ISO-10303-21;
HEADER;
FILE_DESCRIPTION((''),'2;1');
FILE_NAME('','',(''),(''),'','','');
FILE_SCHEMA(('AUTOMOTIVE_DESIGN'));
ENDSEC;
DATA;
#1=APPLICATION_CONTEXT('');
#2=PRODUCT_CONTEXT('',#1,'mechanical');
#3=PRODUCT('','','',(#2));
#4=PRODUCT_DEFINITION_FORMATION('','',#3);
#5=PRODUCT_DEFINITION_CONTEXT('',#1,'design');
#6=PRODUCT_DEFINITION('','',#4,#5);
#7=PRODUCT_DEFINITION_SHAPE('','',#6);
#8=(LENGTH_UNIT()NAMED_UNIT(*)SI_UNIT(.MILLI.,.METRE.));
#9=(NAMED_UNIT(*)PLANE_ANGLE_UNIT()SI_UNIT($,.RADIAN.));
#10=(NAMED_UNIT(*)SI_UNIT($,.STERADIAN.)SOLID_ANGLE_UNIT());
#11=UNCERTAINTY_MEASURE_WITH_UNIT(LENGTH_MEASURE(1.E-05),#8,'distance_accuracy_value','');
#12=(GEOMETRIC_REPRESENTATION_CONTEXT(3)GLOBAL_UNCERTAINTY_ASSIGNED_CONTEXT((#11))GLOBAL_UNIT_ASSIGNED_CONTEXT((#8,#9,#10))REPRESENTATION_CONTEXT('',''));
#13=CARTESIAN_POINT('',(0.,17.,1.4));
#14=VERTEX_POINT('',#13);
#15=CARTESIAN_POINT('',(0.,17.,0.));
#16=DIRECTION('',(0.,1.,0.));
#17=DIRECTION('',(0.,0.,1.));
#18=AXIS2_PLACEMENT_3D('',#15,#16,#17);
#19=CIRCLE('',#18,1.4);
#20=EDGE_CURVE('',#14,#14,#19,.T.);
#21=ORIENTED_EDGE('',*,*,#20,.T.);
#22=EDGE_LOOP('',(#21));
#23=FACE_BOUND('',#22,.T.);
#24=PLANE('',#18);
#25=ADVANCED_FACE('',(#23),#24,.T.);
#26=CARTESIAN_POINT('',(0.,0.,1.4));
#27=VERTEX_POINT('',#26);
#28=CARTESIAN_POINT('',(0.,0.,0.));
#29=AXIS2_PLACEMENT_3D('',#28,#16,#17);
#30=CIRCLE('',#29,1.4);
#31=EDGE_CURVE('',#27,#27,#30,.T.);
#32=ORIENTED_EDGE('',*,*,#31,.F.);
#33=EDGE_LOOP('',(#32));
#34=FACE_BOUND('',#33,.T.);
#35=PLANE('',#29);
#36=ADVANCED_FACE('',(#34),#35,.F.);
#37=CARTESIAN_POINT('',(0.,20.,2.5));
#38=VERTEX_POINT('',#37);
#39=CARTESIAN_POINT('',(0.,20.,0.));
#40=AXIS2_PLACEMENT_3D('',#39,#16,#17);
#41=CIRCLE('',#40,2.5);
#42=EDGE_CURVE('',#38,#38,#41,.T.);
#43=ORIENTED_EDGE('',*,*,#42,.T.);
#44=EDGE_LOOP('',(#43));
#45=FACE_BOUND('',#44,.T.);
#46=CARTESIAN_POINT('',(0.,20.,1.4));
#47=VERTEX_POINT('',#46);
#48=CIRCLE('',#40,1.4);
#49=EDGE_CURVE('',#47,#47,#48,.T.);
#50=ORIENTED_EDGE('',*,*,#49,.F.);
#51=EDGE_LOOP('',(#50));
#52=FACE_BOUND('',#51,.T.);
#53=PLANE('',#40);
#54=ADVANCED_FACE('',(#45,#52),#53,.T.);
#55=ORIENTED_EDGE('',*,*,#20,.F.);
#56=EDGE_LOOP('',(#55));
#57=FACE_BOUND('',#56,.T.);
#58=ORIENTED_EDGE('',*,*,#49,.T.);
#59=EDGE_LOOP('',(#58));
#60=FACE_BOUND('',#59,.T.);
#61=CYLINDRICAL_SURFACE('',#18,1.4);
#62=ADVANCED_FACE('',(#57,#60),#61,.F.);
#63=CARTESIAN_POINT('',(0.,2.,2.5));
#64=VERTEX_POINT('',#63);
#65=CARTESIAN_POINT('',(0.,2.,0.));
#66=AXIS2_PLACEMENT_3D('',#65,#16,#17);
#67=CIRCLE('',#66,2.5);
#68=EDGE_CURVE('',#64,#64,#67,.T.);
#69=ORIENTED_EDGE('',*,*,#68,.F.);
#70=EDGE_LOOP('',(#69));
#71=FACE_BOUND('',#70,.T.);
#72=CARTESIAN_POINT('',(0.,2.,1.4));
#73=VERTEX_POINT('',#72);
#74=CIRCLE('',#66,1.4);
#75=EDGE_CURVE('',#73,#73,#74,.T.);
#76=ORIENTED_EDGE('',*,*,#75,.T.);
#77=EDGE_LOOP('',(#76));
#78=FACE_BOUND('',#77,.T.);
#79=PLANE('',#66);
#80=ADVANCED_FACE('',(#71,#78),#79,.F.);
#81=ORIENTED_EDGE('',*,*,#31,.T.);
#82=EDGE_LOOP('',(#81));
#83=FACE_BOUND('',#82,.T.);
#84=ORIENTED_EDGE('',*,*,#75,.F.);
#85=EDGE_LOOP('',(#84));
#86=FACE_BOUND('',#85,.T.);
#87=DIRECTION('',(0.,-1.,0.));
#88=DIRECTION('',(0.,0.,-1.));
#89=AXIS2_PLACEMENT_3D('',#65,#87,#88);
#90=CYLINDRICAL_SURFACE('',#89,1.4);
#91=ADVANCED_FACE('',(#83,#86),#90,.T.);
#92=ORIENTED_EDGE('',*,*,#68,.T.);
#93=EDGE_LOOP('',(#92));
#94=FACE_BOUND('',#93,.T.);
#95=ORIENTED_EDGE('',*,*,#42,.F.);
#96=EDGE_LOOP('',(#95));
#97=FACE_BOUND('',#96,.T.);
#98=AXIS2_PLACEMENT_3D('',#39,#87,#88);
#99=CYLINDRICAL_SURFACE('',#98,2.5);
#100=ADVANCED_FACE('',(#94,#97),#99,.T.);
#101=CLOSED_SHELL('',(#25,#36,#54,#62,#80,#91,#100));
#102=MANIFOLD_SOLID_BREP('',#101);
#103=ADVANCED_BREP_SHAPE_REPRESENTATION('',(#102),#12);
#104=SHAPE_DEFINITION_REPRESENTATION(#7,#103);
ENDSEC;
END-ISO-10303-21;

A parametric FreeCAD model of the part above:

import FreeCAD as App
import Part
import Sketcher

doc = App.newDocument("Part")
body = doc.addObject("PartDesign::Body", "Body")

# Sketch on XZ plane
sketch1 = doc.addObject("Sketcher::SketchObject", "Sketch")
body.addObject(sketch1)
sketch1.AttachmentSupport = (doc.XZ_Plane, [""])
sketch1.MapMode = "FlatFace"
sketch1.addGeometry(Part.Circle(App.Vector(0, 0, 0), App.Vector(0, 0, 1), 1.4), False)
sketch1.addConstraint([
    Sketcher.Constraint("Coincident", 0, 3, -1, 1),
    Sketcher.Constraint("Diameter", 0, 2.8),
])
pad1 = doc.addObject("PartDesign::Pad", "Pad")
body.addObject(pad1)
pad1.Profile = sketch1
pad1.Length = 2
pad1.Reversed = True

# Sketch on XZ plane
sketch2 = doc.addObject("Sketcher::SketchObject", "Sketch001")
body.addObject(sketch2)
sketch2.AttachmentSupport = (doc.XZ_Plane, [""])
sketch2.MapMode = "FlatFace"
sketch2.AttachmentOffset = App.Placement(App.Vector(0, 0, -2), App.Rotation())
sketch2.addGeometry(Part.Circle(App.Vector(0, 0, 0), App.Vector(0, 0, 1), 2.5), False)
sketch2.addConstraint([
    Sketcher.Constraint("Coincident", 0, 3, -1, 1),
    Sketcher.Constraint("Diameter", 0, 5.0),
])
pad2 = doc.addObject("PartDesign::Pad", "Pad001")
body.addObject(pad2)
pad2.Profile = sketch2
pad2.Length = 18
pad2.Reversed = True

# Sketch on XZ plane
sketch3 = doc.addObject("Sketcher::SketchObject", "Sketch002")
body.addObject(sketch3)
sketch3.AttachmentSupport = (doc.XZ_Plane, [""])
sketch3.MapMode = "FlatFace"
sketch3.AttachmentOffset = App.Placement(App.Vector(0, 0, -17), App.Rotation())
sketch3.addGeometry(Part.Circle(App.Vector(0, 0, 0), App.Vector(0, 0, 1), 1.4), False)
sketch3.addConstraint([
    Sketcher.Constraint("Coincident", 0, 3, -1, 1),
    Sketcher.Constraint("Diameter", 0, 2.8),
])
pocket1 = doc.addObject("PartDesign::Pocket", "Pocket")
body.addObject(pocket1)
pocket1.Profile = sketch3
pocket1.Length = 3

doc.recompute()
